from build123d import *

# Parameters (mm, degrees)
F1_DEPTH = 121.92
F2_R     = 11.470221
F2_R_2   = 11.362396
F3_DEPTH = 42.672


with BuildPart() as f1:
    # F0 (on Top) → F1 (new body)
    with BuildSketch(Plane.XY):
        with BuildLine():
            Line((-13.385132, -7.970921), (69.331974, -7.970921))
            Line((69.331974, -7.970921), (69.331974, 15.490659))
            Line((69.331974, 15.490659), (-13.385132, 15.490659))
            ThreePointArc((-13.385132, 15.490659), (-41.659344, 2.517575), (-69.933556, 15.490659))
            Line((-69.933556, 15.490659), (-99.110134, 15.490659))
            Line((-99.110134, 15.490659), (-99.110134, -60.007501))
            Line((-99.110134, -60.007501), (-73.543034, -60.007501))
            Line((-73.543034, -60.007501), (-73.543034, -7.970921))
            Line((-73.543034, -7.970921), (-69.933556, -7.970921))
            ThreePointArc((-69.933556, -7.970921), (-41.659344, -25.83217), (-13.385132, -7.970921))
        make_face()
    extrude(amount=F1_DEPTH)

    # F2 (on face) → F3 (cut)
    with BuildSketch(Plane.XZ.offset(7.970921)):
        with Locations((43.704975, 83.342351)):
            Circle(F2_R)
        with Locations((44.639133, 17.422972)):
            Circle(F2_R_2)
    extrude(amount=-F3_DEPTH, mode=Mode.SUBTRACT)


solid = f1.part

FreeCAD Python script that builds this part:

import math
import FreeCAD as App
import Part
import Sketcher
Q = App.Units.Quantity

doc = App.newDocument("Part")
body = doc.addObject("PartDesign::Body", "Body")

sketch1 = body.newObject("Sketcher::SketchObject", "Sketch")
sketch1.AttachmentSupport = (doc.getObject("XY_Plane"), [""])
sketch1.MapMode = "FlatFace"
sketch1.addGeometry([
    Part.LineSegment(App.Vector(-13.4, -8, 0), App.Vector(69.3, -8, 0)),
    Part.LineSegment(App.Vector(69.3, -8, 0), App.Vector(69.3, 15.5, 0)),
    Part.LineSegment(App.Vector(69.3, 15.5, 0), App.Vector(-13.4, 15.5, 0)),
    Part.ArcOfCircle(Part.Circle(App.Vector(-41.7, 39.8, 0), App.Vector(0, 0, 1), 37.3), math.radians(-139), math.radians(-41)),
    Part.LineSegment(App.Vector(-69.9, 15.5, 0), App.Vector(-99.1, 15.5, 0)),
    Part.LineSegment(App.Vector(-99.1, 15.5, 0), App.Vector(-99.1, -60, 0)),
    Part.LineSegment(App.Vector(-99.1, -60, 0), App.Vector(-73.5, -60, 0)),
    Part.LineSegment(App.Vector(-73.5, -60, 0), App.Vector(-73.5, -8, 0)),
    Part.LineSegment(App.Vector(-73.5, -8, 0), App.Vector(-69.9, -8, 0)),
    Part.ArcOfCircle(Part.Circle(App.Vector(-41.7, 5.5, 0), App.Vector(0, 0, 1), 31.3), math.radians(-155), math.radians(-25)),
], False)
sketch1.addConstraint([
    Sketcher.Constraint("Coincident", 0, 2, 1, 1),
    Sketcher.Constraint("Coincident", 1, 2, 2, 1),
    Sketcher.Constraint("Coincident", 2, 2, 3, 2),
    Sketcher.Constraint("Coincident", 3, 1, 4, 1),
    Sketcher.Constraint("Coincident", 4, 2, 5, 1),
    Sketcher.Constraint("Coincident", 5, 2, 6, 1),
    Sketcher.Constraint("Coincident", 6, 2, 7, 1),
    Sketcher.Constraint("Coincident", 7, 2, 8, 1),
    Sketcher.Constraint("Coincident", 8, 2, 9, 1),
    Sketcher.Constraint("Coincident", 9, 2, 0, 1),
    Sketcher.Constraint("Horizontal", 0),
    Sketcher.Constraint("Vertical", 1),
    Sketcher.Constraint("Horizontal", 2),
    Sketcher.Constraint("Horizontal", 4),
    Sketcher.Constraint("Vertical", 5),
    Sketcher.Constraint("Horizontal", 6),
    Sketcher.Constraint("Vertical", 7),
    Sketcher.Constraint("Horizontal", 8),
    Sketcher.Constraint("Horizontal", 2, 2, 3, 1),
    Sketcher.Constraint("Horizontal", 0, 2, 7, 2),
    Sketcher.Constraint("Vertical", 3, 3, 9, 3),
    Sketcher.Constraint("Vertical", 3, 1, 8, 2),
    Sketcher.Constraint("Radius", 9, Q("31.309548 mm")),
    Sketcher.Constraint("DistanceX", 4, 2, 2, 2, Q("3.3750001 in")),
    Sketcher.Constraint("DistanceX", 6, 1, 6, 2, Q("25.5671 mm")),
    Sketcher.Constraint("DistanceY", 5, 2, -1, 1, Q("2.3625 in")),
    Sketcher.Constraint("Radius", 3, Q("37.297684 mm")),
    Sketcher.Constraint("DistanceX", 4, 2, 4, 1, Q("29.176578 mm")),
    Sketcher.Constraint("DistanceY", 1, 1, 1, 2, Q("23.46158 mm")),
    Sketcher.Constraint("DistanceY", 5, 2, 5, 1, Q("75.49816 mm")),
    Sketcher.Constraint("DistanceX", 0, 1, 0, 2, Q("82.717106 mm")),
    Sketcher.Constraint("DistanceX", 9, 2, -1, 1, Q("13.385132 mm")),
])
pad1 = body.newObject("PartDesign::Pad", "Pad")
pad1.Profile = sketch1
pad1.Length = Q("4.8 in")

sketch2 = body.newObject("Sketcher::SketchObject", "Sketch001")
sketch2.AttachmentSupport = (doc.getObject("XZ_Plane"), [""])
sketch2.MapMode = "FlatFace"
sketch2.AttachmentOffset = App.Placement(App.Vector(0, 0, 7.970921), App.Rotation())
sketch2.addGeometry([
    Part.Circle(App.Vector(44, 83, 0), App.Vector(0, 0, 1), 11),
    Part.Circle(App.Vector(45, 17, 0), App.Vector(0, 0, 1), 11),
], False)
sketch2.addConstraint([
    Sketcher.Constraint("Diameter", 0, Q("22.940442 mm")),
    Sketcher.Constraint("Diameter", 1, Q("22.724792 mm")),
    Sketcher.Constraint("DistanceY", -1, 1, 0, 3, Q("83.342351 mm")),
    Sketcher.Constraint("DistanceX", 0, 3, 1, 3, Q("0.934158 mm")),
    Sketcher.Constraint("DistanceY", 1, 3, 0, 3, Q("65.919379 mm")),
    Sketcher.Constraint("DistanceX", -1, 1, 0, 3, Q("43.704975 mm")),
])
pocket1 = body.newObject("PartDesign::Pocket", "Pocket")
pocket1.Profile = sketch2
pocket1.Length = Q("1.68 in")

doc.recompute()
